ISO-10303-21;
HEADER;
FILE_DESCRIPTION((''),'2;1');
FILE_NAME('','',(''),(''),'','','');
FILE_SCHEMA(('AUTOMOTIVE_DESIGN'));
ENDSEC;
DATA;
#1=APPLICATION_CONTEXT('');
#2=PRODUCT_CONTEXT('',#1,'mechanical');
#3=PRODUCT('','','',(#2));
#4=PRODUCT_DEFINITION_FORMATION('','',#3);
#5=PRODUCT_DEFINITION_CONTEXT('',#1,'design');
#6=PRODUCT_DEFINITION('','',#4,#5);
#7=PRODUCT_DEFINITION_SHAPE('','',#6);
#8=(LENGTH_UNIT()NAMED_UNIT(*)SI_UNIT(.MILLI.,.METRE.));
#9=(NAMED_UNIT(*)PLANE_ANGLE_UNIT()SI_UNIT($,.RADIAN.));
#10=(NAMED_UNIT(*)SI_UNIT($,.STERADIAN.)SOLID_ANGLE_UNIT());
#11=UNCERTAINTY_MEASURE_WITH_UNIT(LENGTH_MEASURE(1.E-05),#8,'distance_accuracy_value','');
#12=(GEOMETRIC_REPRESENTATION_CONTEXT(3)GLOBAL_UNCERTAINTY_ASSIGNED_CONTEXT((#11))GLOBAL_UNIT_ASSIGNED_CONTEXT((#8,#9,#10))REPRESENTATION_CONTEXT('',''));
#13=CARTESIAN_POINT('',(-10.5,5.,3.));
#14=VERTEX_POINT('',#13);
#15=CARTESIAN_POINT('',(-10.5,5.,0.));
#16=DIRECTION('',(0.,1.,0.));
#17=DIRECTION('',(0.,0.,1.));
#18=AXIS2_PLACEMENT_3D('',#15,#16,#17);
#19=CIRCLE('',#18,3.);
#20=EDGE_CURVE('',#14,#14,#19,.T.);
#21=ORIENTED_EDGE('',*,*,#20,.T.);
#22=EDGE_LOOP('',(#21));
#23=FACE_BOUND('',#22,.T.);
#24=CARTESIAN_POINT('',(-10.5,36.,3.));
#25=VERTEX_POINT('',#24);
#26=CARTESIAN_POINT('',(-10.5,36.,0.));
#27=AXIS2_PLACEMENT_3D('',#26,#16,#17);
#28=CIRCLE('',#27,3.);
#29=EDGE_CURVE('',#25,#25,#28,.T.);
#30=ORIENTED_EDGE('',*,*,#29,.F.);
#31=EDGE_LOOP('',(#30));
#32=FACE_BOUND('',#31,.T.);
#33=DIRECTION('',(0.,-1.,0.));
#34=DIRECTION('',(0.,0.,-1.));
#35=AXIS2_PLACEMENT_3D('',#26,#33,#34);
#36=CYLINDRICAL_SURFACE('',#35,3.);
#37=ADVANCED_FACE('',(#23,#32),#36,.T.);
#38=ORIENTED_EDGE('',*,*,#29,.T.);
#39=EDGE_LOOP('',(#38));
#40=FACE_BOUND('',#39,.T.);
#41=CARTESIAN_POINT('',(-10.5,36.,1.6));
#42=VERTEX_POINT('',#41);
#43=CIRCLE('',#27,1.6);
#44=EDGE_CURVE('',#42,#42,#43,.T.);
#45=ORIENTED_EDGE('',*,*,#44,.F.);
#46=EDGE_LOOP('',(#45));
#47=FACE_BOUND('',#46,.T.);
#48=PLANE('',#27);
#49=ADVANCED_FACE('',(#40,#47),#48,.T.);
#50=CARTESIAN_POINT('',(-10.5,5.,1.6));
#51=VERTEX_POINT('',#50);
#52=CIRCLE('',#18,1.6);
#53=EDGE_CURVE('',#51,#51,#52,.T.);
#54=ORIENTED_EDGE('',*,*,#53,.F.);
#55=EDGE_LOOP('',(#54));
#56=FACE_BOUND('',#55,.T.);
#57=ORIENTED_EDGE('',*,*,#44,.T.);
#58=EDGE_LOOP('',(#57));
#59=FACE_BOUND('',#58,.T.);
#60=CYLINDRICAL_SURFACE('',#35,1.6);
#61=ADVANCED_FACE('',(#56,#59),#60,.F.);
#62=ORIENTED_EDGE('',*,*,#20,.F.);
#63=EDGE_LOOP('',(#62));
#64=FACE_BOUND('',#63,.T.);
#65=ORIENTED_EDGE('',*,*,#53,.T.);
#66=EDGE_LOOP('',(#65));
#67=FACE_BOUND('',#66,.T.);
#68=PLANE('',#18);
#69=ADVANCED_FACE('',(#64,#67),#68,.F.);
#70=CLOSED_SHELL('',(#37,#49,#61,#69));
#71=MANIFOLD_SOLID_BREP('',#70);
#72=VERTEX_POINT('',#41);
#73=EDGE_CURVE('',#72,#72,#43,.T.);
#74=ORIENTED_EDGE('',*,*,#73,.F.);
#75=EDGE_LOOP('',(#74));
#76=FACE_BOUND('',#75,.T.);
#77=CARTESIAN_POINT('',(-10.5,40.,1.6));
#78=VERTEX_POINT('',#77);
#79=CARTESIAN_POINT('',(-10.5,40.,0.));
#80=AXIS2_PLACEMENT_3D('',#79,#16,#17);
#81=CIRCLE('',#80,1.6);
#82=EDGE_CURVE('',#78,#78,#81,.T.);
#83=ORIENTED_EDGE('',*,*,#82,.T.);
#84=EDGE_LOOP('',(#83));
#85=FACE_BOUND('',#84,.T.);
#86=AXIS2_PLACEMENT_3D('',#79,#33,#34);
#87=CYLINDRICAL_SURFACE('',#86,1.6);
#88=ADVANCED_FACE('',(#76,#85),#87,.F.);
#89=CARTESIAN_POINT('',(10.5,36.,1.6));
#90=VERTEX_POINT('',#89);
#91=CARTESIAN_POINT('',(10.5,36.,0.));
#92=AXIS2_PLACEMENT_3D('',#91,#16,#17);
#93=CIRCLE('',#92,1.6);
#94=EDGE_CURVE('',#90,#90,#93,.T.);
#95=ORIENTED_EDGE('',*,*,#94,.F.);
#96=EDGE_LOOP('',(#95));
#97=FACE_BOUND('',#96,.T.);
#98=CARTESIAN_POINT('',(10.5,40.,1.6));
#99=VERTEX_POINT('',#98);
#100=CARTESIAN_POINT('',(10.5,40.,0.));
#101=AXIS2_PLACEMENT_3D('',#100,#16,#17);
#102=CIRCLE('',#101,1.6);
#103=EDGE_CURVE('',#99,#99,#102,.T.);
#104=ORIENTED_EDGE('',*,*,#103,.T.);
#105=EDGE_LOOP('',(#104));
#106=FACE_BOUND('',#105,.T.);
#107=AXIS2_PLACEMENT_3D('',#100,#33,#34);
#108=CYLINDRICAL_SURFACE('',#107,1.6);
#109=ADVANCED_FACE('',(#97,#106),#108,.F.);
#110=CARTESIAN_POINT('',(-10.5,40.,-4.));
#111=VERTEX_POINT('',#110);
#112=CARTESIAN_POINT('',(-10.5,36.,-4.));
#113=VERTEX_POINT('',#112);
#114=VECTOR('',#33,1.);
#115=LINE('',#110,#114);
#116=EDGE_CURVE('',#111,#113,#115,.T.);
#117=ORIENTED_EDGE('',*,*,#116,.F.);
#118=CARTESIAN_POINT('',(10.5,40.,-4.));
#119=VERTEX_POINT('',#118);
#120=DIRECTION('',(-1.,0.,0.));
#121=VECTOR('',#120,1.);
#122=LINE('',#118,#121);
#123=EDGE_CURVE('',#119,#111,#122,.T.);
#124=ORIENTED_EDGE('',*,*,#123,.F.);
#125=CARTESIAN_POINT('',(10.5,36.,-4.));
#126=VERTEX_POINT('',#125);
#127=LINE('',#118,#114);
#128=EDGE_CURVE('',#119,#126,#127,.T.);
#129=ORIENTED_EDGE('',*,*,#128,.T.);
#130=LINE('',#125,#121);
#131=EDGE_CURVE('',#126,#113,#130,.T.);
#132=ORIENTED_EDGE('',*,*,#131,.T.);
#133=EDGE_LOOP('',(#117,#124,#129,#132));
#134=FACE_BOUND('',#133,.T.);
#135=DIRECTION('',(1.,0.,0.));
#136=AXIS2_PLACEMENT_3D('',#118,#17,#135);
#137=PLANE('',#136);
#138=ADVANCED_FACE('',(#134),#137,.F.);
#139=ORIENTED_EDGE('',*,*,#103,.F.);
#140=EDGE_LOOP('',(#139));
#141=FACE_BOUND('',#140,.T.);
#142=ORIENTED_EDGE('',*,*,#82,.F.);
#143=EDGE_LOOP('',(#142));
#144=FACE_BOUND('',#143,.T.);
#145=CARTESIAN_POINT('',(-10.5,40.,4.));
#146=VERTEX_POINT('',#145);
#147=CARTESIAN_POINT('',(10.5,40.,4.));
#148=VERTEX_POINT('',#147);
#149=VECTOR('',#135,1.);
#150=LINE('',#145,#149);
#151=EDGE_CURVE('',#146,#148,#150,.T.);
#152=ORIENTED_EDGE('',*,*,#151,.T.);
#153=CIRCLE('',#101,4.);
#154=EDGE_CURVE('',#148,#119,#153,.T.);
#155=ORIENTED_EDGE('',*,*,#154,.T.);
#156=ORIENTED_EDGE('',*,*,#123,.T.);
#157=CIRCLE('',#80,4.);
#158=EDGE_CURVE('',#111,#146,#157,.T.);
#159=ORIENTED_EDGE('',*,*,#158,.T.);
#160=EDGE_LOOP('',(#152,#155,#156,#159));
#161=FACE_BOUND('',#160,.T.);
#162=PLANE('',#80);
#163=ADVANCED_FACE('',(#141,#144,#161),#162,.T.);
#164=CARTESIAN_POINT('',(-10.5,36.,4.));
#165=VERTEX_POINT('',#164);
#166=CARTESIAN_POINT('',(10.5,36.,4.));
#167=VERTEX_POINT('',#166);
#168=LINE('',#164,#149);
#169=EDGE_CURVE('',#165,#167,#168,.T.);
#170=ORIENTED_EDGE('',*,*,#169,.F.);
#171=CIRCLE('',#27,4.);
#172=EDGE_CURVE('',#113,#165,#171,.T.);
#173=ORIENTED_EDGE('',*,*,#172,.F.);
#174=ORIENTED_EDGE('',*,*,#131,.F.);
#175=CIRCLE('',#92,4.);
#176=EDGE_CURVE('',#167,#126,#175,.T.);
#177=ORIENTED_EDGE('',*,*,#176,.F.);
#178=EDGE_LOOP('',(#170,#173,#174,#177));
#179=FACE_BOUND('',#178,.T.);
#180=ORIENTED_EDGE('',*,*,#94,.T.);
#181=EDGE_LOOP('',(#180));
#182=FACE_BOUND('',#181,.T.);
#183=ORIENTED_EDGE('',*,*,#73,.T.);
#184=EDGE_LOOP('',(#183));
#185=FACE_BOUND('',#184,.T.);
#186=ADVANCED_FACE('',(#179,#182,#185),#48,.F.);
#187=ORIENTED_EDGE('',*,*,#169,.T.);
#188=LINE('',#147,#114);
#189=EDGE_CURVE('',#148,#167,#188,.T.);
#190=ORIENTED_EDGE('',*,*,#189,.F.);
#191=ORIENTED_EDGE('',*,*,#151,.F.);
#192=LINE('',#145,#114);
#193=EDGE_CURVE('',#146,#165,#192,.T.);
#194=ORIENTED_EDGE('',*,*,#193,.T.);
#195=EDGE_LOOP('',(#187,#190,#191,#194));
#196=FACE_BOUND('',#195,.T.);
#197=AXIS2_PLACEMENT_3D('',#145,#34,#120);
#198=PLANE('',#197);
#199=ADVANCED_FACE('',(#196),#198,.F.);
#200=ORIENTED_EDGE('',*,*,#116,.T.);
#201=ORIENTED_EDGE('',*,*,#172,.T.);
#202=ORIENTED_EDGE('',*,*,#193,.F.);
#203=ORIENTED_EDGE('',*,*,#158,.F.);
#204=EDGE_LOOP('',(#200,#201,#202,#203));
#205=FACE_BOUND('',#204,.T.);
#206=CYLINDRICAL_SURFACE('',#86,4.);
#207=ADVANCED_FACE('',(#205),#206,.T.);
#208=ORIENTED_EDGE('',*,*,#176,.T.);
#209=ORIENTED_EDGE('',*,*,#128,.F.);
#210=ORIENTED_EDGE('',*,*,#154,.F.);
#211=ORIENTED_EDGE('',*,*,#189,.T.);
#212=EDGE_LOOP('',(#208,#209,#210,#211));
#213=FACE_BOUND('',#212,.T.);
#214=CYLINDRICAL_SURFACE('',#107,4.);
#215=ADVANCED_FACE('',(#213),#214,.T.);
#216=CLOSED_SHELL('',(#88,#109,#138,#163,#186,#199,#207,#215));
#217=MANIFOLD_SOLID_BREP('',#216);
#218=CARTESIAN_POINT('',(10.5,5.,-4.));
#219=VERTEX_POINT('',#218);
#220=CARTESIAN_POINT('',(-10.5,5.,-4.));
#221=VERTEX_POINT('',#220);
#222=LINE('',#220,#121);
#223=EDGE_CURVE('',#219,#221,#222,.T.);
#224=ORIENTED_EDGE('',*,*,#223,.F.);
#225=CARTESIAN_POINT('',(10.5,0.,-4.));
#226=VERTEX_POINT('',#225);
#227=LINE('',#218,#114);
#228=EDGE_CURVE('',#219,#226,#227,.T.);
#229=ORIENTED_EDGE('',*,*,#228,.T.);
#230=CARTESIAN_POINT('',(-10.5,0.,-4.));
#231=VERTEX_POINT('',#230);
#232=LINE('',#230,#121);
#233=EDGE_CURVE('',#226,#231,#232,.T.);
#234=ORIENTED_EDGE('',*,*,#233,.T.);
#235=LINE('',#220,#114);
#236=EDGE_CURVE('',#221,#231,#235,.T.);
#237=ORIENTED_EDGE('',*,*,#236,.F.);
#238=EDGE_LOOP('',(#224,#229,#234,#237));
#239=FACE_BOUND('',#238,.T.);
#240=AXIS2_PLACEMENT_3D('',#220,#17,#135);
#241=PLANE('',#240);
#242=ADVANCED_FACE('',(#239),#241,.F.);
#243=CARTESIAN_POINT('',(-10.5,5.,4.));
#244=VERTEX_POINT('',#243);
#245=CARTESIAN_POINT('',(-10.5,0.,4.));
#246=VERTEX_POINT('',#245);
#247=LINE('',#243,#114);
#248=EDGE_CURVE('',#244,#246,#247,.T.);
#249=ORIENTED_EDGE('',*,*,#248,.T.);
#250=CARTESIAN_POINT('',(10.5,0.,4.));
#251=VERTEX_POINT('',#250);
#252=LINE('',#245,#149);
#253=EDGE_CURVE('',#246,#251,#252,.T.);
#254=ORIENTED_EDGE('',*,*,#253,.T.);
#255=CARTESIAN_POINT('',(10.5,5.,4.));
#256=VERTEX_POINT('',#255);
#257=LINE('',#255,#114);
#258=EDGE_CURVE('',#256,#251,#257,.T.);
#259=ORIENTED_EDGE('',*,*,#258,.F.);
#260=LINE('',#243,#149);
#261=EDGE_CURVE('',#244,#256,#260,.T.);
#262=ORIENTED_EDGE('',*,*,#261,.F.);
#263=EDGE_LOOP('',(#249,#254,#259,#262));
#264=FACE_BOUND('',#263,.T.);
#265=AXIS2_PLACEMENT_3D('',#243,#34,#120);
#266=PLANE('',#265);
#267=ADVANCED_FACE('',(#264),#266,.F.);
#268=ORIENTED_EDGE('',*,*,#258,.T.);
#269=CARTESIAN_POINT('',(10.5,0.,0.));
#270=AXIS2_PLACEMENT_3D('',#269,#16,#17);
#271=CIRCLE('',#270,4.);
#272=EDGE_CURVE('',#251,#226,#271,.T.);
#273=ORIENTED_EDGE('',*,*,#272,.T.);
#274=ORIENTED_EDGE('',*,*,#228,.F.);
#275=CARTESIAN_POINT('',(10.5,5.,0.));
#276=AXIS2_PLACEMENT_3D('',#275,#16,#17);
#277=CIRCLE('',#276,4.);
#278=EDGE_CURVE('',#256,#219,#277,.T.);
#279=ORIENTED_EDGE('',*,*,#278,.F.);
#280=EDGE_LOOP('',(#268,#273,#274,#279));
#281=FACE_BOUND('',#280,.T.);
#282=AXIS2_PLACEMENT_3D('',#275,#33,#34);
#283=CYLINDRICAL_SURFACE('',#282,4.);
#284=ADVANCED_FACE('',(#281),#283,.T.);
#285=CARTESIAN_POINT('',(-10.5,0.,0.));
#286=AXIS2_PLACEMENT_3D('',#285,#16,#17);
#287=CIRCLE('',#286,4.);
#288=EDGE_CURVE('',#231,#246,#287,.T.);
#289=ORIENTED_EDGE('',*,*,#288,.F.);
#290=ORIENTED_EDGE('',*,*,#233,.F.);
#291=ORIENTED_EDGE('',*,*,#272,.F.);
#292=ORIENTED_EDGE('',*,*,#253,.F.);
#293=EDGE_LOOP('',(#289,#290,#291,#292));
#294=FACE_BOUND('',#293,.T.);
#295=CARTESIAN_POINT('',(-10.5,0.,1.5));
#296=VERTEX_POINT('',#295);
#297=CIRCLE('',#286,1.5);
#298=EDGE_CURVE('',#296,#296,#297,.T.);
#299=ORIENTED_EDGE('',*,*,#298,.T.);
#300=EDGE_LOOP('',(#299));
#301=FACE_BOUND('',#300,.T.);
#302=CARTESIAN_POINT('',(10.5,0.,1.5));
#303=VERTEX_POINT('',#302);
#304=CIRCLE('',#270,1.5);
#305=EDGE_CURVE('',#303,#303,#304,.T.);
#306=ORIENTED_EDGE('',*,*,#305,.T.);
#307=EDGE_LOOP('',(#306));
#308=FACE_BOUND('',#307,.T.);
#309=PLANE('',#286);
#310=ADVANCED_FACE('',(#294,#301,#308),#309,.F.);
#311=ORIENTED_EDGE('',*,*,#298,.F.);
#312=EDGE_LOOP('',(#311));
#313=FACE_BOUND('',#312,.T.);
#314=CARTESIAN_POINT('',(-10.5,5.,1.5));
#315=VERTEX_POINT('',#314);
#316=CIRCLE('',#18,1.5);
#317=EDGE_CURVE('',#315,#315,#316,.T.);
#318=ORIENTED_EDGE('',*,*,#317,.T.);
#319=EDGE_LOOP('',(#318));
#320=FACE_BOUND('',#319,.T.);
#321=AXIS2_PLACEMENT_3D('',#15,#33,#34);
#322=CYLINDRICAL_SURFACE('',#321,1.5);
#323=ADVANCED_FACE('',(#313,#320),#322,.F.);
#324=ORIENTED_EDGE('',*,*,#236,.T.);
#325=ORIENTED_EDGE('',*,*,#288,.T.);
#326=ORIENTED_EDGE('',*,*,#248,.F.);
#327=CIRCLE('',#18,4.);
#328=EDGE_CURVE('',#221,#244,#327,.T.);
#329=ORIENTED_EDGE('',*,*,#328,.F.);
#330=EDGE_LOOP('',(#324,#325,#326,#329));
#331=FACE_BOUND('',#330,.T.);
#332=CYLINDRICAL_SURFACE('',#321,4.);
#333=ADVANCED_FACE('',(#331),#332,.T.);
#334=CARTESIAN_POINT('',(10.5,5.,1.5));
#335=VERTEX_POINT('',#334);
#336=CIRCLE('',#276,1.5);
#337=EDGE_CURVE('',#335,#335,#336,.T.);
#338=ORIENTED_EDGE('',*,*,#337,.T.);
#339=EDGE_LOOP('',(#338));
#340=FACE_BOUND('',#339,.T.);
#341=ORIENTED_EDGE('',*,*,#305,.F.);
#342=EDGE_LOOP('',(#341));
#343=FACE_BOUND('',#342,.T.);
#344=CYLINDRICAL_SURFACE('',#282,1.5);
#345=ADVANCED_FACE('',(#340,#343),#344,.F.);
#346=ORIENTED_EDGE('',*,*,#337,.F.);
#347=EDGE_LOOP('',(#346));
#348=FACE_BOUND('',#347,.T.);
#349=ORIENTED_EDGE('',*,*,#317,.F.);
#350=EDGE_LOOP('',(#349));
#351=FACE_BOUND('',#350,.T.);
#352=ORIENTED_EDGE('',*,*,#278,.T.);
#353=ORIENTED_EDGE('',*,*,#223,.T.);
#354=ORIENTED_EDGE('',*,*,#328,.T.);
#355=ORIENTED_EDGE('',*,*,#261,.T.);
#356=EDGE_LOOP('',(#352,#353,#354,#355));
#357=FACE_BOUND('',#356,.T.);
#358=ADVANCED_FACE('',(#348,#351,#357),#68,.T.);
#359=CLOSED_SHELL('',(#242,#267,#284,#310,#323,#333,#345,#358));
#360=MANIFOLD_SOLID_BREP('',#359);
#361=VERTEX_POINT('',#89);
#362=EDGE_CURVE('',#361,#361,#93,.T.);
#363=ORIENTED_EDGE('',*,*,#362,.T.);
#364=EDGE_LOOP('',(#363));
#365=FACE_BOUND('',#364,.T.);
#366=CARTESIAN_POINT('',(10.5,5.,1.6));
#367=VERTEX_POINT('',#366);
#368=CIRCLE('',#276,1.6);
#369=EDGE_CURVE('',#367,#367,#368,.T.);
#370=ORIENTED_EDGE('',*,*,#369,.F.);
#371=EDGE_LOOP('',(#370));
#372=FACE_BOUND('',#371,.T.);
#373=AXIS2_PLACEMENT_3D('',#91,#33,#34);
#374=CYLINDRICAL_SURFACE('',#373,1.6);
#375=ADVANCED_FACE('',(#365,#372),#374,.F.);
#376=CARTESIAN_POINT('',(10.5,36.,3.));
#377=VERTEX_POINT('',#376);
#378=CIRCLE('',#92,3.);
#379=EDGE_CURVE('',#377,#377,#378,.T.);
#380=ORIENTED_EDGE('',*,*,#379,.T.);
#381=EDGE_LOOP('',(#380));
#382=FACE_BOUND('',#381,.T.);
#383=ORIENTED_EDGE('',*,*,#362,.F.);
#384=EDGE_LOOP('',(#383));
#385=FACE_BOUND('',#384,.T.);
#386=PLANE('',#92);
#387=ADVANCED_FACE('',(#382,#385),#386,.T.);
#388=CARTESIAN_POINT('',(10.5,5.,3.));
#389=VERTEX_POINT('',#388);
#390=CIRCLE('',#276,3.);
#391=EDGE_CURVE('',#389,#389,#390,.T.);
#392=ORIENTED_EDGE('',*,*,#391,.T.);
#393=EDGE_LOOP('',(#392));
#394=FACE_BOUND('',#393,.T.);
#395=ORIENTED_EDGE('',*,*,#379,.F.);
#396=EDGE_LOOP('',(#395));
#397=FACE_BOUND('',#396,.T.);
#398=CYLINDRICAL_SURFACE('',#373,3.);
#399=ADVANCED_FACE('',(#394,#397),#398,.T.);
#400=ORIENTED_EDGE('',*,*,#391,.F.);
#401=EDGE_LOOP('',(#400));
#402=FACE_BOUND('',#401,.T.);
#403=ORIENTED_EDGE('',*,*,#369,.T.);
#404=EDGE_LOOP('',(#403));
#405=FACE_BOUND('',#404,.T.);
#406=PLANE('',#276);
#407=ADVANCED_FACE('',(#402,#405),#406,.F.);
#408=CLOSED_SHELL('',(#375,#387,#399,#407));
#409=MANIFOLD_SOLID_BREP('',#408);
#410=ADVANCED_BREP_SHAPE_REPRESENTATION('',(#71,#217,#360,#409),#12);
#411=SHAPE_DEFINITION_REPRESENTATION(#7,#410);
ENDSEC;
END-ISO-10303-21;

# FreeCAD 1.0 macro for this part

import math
import FreeCAD as App
import Part
import Sketcher
from FreeCAD import Vector
Q = App.Units.Quantity

doc = App.newDocument("Part")
body = doc.addObject("PartDesign::Body", "Body")

# Sketch on XZ plane
sketch1 = body.newObject("Sketcher::SketchObject", "Sketch")
sketch1.AttachmentSupport = (doc.getObject("XZ_Plane"), [""])
sketch1.MapMode = "FlatFace"
sketch1.addGeometry([
    Part.LineSegment(Vector(10.5, -4, 0), Vector(-10.5, -4, 0)),  # 0
    Part.ArcOfCircle(Part.Circle(Vector(-10.5, 0, 0), Vector(0, 0, 1), 4), math.radians(90), math.radians(270)),  # 1
    Part.LineSegment(Vector(-10.5, 4, 0), Vector(10.5, 4, 0)),  # 2
    Part.ArcOfCircle(Part.Circle(Vector(10.5, 0, 0), Vector(0, 0, 1), 4), math.radians(-90), math.radians(90)),  # 3
    Part.Circle(Vector(10.5, 0, 0), Vector(0, 0, 1), 1.5),  # 4
    Part.Circle(Vector(-10.5, 0, 0), Vector(0, 0, 1), 1.5),  # 5
], False)
sketch1.addConstraint([
    Sketcher.Constraint("Tangent", 0, 2, 1, 2),
    Sketcher.Constraint("Tangent", 1, 1, 2, 1),
    Sketcher.Constraint("Tangent", 2, 2, 3, 2),
    Sketcher.Constraint("Tangent", 3, 1, 0, 1),
    Sketcher.Constraint("Horizontal", 0),
    Sketcher.Constraint("Horizontal", 2),
    Sketcher.Constraint("Coincident", 4, 3, 3, 3),
    Sketcher.Constraint("Coincident", 5, 3, 1, 3),
    Sketcher.Constraint("Equal", 4, 5),
    Sketcher.Constraint("Symmetric", 1, 3, 3, 3, -1, 1),
    Sketcher.Constraint("Diameter", 4, Q("3 mm")),
    Sketcher.Constraint("Radius", 1, Q("4 mm")),
    Sketcher.Constraint("DistanceX", 0, 2, 0, 1, Q("21 mm")),
])
pad1 = body.newObject("PartDesign::Pad", "Pad")
pad1.Profile = sketch1
pad1.Length = 5
pad1.Reversed = True
body2 = doc.addObject("PartDesign::Body", "Body001")

# Sketch on XZ plane
sketch2 = body2.newObject("Sketcher::SketchObject", "Sketch001")
sketch2.AttachmentSupport = (doc.getObject("XZ_Plane001"), [""])
sketch2.MapMode = "FlatFace"
sketch2.AttachmentOffset = App.Placement(Vector(0, 0, -5), App.Rotation())
sketch2.addGeometry([
    Part.Circle(Vector(-10.5, 0, 0), Vector(0, 0, 1), 3),
    Part.Circle(Vector(-10.5, 0, 0), Vector(0, 0, 1), 1.6),
], False)
sketch2.addConstraint([
    Sketcher.Constraint("Coincident", 1, 3, 0, 3),
    Sketcher.Constraint("PointOnObject", 0, 3, -1),
    Sketcher.Constraint("Diameter", 0, Q("6 mm")),
    Sketcher.Constraint("Diameter", 1, Q("3.2 mm")),
    Sketcher.Constraint("DistanceX", 0, 3, -1, 1, Q("10.5 mm")),
])
pad2 = body2.newObject("PartDesign::Pad", "Pad001")
pad2.Profile = sketch2
pad2.Length = 31
pad2.Reversed = True
body3 = doc.addObject("PartDesign::Body", "Body002")

# Sketch on XZ plane
sketch3 = body3.newObject("Sketcher::SketchObject", "Sketch002")
sketch3.AttachmentSupport = (doc.getObject("XZ_Plane002"), [""])
sketch3.MapMode = "FlatFace"
sketch3.AttachmentOffset = App.Placement(Vector(0, 0, -5), App.Rotation())
sketch3.addGeometry([
    Part.Circle(Vector(10.5, 0, 0), Vector(0, 0, 1), 3),
    Part.Circle(Vector(10.5, 0, 0), Vector(0, 0, 1), 1.6),
], False)
sketch3.addConstraint([
    Sketcher.Constraint("Coincident", 1, 3, 0, 3),
    Sketcher.Constraint("PointOnObject", 0, 3, -1),
    Sketcher.Constraint("Diameter", 0, Q("6 mm")),
    Sketcher.Constraint("Diameter", 1, Q("3.2 mm")),
    Sketcher.Constraint("DistanceX", -1, 1, 0, 3, Q("10.5 mm")),
])
pad3 = body3.newObject("PartDesign::Pad", "Pad002")
pad3.Profile = sketch3
pad3.Length = 31
pad3.Reversed = True
body4 = doc.addObject("PartDesign::Body", "Body003")

# Sketch on XZ plane
sketch4 = body4.newObject("Sketcher::SketchObject", "Sketch003")
sketch4.AttachmentSupport = (doc.getObject("XZ_Plane003"), [""])
sketch4.MapMode = "FlatFace"
sketch4.AttachmentOffset = App.Placement(Vector(0, 0, -36), App.Rotation())
sketch4.addGeometry([
    Part.LineSegment(Vector(-10.5, 4, 0), Vector(10.5, 4, 0)),  # 0
    Part.ArcOfCircle(Part.Circle(Vector(10.5, 0, 0), Vector(0, 0, 1), 4), math.radians(-90), math.radians(90)),  # 1
    Part.LineSegment(Vector(10.5, -4, 0), Vector(-10.5, -4, 0)),  # 2
    Part.ArcOfCircle(Part.Circle(Vector(-10.5, 0, 0), Vector(0, 0, 1), 4), math.radians(90), math.radians(270)),  # 3
    Part.Circle(Vector(-10.5, 0, 0), Vector(0, 0, 1), 1.6),  # 4
    Part.Circle(Vector(10.5, 0, 0), Vector(0, 0, 1), 1.6),  # 5
], False)
sketch4.addConstraint([
    Sketcher.Constraint("Tangent", 0, 2, 1, 2),
    Sketcher.Constraint("Tangent", 1, 1, 2, 1),
    Sketcher.Constraint("Tangent", 2, 2, 3, 2),
    Sketcher.Constraint("Tangent", 3, 1, 0, 1),
    Sketcher.Constraint("Horizontal", 0),
    Sketcher.Constraint("Horizontal", 2),
    Sketcher.Constraint("Coincident", 4, 3, 3, 3),
    Sketcher.Constraint("Coincident", 5, 3, 1, 3),
    Sketcher.Constraint("Equal", 4, 5),
    Sketcher.Constraint("Symmetric", 1, 3, 3, 3, -1, 1),
    Sketcher.Constraint("Radius", 1, Q("4 mm")),
    Sketcher.Constraint("Diameter", 4, Q("3.2 mm")),
    Sketcher.Constraint("DistanceX", 0, 1, 0, 2, Q("21 mm")),
])
pad4 = body4.newObject("PartDesign::Pad", "Pad003")
pad4.Profile = sketch4
pad4.Length = 4
pad4.Reversed = True

doc.recompute()
